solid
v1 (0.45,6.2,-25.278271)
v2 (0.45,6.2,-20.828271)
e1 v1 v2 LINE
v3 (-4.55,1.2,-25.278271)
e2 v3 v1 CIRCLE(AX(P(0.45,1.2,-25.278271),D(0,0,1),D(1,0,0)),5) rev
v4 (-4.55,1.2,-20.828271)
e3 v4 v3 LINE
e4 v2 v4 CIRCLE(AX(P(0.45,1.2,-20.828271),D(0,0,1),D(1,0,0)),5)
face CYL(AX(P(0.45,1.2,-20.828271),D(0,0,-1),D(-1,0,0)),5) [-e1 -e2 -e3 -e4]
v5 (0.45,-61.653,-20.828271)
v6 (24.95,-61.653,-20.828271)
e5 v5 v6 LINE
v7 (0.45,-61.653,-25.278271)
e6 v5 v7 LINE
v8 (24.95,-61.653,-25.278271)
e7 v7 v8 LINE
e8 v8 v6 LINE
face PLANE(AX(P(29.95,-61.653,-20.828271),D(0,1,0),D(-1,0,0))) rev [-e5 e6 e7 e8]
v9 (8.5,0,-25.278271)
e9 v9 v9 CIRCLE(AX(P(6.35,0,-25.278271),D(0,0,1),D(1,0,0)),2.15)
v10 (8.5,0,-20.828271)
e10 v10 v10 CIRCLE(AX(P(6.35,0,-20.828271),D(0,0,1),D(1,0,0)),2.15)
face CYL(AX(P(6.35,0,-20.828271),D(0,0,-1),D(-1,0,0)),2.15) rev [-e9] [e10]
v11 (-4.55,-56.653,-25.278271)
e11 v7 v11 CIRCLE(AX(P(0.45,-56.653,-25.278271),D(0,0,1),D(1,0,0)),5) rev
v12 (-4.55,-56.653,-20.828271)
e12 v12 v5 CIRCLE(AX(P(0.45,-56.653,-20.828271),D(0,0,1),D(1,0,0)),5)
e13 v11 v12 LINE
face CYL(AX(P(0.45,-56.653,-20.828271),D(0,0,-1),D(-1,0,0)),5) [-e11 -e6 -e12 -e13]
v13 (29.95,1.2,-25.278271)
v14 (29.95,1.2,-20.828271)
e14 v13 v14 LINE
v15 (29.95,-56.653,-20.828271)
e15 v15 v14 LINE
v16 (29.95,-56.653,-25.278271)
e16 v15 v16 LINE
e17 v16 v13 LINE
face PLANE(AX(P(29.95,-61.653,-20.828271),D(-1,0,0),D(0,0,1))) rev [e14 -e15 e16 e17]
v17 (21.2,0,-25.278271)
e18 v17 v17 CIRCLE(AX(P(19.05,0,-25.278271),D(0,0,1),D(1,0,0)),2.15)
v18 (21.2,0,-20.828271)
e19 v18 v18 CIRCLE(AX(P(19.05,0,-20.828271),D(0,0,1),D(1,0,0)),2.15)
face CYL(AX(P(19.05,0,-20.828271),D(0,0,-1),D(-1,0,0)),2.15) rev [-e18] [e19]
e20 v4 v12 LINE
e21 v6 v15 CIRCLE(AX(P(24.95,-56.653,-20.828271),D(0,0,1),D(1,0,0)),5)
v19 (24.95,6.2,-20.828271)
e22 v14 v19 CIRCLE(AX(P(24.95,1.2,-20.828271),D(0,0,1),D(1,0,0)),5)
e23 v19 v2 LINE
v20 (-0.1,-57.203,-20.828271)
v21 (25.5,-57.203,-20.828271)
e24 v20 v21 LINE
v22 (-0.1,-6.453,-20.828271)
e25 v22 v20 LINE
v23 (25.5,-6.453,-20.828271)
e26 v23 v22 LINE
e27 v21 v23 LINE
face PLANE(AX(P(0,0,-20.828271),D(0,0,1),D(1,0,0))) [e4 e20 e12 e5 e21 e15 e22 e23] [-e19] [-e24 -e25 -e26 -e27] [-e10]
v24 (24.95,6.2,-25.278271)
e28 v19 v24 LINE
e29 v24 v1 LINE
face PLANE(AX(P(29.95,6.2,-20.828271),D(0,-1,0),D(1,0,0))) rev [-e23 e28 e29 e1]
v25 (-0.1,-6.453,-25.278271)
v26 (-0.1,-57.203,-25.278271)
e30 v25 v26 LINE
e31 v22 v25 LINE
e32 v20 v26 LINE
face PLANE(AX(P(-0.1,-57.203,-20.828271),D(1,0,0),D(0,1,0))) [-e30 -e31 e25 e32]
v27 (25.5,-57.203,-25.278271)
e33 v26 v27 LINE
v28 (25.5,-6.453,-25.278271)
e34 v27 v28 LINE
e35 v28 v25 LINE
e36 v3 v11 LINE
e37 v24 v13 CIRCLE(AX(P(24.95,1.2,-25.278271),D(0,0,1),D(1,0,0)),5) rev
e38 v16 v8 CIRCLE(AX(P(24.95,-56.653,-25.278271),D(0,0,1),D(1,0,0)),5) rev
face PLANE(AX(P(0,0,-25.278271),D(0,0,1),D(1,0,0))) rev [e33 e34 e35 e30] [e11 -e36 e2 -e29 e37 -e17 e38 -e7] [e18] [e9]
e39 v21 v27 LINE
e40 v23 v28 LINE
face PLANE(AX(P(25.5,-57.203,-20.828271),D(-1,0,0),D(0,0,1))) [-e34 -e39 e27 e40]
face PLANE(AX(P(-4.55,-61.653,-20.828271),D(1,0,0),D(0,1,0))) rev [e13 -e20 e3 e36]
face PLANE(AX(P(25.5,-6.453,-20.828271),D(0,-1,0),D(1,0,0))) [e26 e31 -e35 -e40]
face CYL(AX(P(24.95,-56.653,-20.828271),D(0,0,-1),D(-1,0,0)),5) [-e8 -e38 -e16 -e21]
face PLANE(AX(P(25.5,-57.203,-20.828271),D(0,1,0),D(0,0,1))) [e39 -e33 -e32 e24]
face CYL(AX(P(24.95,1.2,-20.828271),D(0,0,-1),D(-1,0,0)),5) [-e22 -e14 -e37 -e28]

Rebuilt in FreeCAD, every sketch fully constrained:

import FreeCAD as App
import Part
import Sketcher
from FreeCAD import Vector


def edges_at(feature, points):
    """Names of the edges that pass closest to the given points."""
    edges = feature.Shape.Edges
    near = lambda p: min(range(len(edges)), key=lambda i: edges[i].distToShape(Part.Vertex(*p))[0])
    return sorted({f"Edge{near(p) + 1}" for p in points})


def add_polygon(sketch, points):
    """Adds a closed chain of lines whose ends are joined by coincident constraints."""
    first, n = sketch.GeometryCount, len(points)
    for a, b in zip(points, points[1:] + points[:1]):
        sketch.addGeometry(Part.LineSegment(App.Vector(*a, 0), App.Vector(*b, 0)), False)
    for i in range(n):
        sketch.addConstraint(Sketcher.Constraint("Coincident", first + i, 2, first + (i + 1) % n, 1))

doc = App.newDocument("Part")
params = doc.addObject("Spreadsheet::Sheet", "Params")
for row, (alias, value) in enumerate([
    ("sketch1_diameter", "4.3 mm"),
    ("sketch1_width", "34.5 mm"),
    ("sketch1_width2", "25.6 mm"),
    ("sketch1_height", "50.75 mm"),
    ("pad1_length", "4.45 mm"),
    ("fillet_radius", "5 mm"),
], start=1):
    params.set(f"A{row}", alias)
    params.set(f"B{row}", "=" + value)
    params.setAlias(f"B{row}", alias)

body = doc.addObject("PartDesign::Body", "Body")

# Sketch on XY plane
sketch1 = body.newObject("Sketcher::SketchObject", "Sketch")
sketch1.AttachmentSupport = (doc.getObject("XY_Plane"), [""])
sketch1.MapMode = "FlatFace"
sketch1.AttachmentOffset = App.Placement(Vector(0, 0, -25.278271), App.Rotation())
add_polygon(sketch1, [(-4.5, 6.2), (-4.5, -61.7), (29.9, -61.7), (29.9, 6.2)])  # lines 0-3
add_polygon(sketch1, [(25.5, -57.2), (-0.1, -57.2), (-0.1, -6.5), (25.5, -6.5)])  # lines 4-7
sketch1.addGeometry(Part.Circle(Vector(6.3, 0, 0), Vector(0, 0, 1), 2.1), False)  # 8
sketch1.addGeometry(Part.Circle(Vector(19.1, 0, 0), Vector(0, 0, 1), 2.1), False)  # 9
sketch1.addConstraint(Sketcher.Constraint("Vertical", 0))
sketch1.addConstraint(Sketcher.Constraint("Horizontal", 1))
sketch1.addConstraint(Sketcher.Constraint("Vertical", 2))
sketch1.addConstraint(Sketcher.Constraint("Horizontal", 3))
sketch1.addConstraint(Sketcher.Constraint("Horizontal", 4))
sketch1.addConstraint(Sketcher.Constraint("Vertical", 5))
sketch1.addConstraint(Sketcher.Constraint("Horizontal", 6))
sketch1.addConstraint(Sketcher.Constraint("Vertical", 7))
sketch1.addConstraint(Sketcher.Constraint("Equal", 8, 9))
sketch1.addConstraint(Sketcher.Constraint("PointOnObject", 8, 3, -1))
sketch1.addConstraint(Sketcher.Constraint("PointOnObject", 9, 3, -1))
sketch1.addConstraint(Sketcher.Constraint("Diameter", 8, 4.3))
sketch1.addConstraint(Sketcher.Constraint("DistanceX", 1, 1, 1, 2, 34.5))
sketch1.addConstraint(Sketcher.Constraint("DistanceX", 4, 2, 4, 1, 25.6))
sketch1.addConstraint(Sketcher.Constraint("DistanceY", 5, 1, 5, 2, 50.75))
sketch1.addConstraint(Sketcher.Constraint("DistanceY", -1, 1, 2, 2, 6.2))
sketch1.addConstraint(Sketcher.Constraint("DistanceX", 4, 2, -1, 1, 0.1))
sketch1.addConstraint(Sketcher.Constraint("DistanceX", 8, 3, 9, 3, 12.7))
sketch1.addConstraint(Sketcher.Constraint("DistanceX", 0, 2, 8, 3, 10.9))
sketch1.addConstraint(Sketcher.Constraint("DistanceY", 0, 2, 0, 1, 67.853))
sketch1.addConstraint(Sketcher.Constraint("DistanceX", -1, 1, 8, 3, 6.35))
sketch1.addConstraint(Sketcher.Constraint("DistanceY", 0, 2, 4, 2, 4.45))
sketch1.setExpression("Constraints[19]", "Params.sketch1_diameter")
sketch1.setExpression("Constraints[20]", "Params.sketch1_width")
sketch1.setExpression("Constraints[21]", "Params.sketch1_width2")
sketch1.setExpression("Constraints[22]", "Params.sketch1_height")
pad1 = body.newObject("PartDesign::Pad", "Pad")
pad1.Profile = sketch1
pad1.setExpression("Length", "Params.pad1_length")
doc.recompute()

fillet = body.newObject("PartDesign::Fillet", "Fillet")
fillet.Base = (pad1, edges_at(pad1, [
    (29.95, -61.653, -23.053),
    (-4.55, -61.653, -23.053),
    (-4.55, 6.2, -23.053),
    (29.95, 6.2, -23.053),
]))
fillet.setExpression("Radius", "Params.fillet_radius")

doc.recompute()
